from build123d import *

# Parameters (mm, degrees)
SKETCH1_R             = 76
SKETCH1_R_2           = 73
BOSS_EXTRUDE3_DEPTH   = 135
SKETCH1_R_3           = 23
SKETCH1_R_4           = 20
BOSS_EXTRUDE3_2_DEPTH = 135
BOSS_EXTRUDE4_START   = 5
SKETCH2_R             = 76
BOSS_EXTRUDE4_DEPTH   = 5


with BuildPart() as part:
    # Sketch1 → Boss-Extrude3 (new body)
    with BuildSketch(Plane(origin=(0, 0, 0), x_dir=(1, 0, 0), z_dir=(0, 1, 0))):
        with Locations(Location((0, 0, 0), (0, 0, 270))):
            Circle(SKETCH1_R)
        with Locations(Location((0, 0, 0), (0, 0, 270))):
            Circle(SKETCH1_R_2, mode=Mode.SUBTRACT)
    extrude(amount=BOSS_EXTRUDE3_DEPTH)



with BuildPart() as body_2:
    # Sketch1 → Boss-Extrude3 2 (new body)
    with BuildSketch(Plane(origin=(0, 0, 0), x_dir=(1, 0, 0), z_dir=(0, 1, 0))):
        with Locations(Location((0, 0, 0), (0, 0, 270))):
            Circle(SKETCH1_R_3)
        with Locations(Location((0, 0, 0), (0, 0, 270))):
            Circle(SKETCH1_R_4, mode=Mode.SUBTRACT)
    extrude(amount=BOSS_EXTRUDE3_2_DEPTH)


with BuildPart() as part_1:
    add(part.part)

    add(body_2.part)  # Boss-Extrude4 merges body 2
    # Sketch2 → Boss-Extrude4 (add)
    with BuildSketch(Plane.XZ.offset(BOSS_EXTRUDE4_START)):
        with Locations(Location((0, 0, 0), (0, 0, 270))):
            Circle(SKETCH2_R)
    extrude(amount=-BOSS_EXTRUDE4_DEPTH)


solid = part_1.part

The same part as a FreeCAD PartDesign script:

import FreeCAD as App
import Part
import Sketcher
Q = App.Units.Quantity

doc = App.newDocument("Part")
params = doc.addObject("Spreadsheet::Sheet", "Params")
for row, (alias, value) in enumerate([
    ("sketch1_diameter", "152 mm"),
    ("sketch1_diameter2", "146 mm"),
    ("pad1_length", "135 mm"),
    ("sketch2_diameter", "46 mm"),
    ("sketch2_diameter2", "40 mm"),
    ("pad2_length", "135 mm"),
    ("sketch3_diameter", "152 mm"),
    ("pad3_length", "5 mm"),
], start=1):
    params.set(f"A{row}", alias)
    params.set(f"B{row}", "=" + value)
    params.setAlias(f"B{row}", alias)

body = doc.addObject("PartDesign::Body", "Body")

# Sketch on XZ plane
sketch1 = doc.addObject("Sketcher::SketchObject", "Sketch")
body.addObject(sketch1)
sketch1.AttachmentSupport = (doc.XZ_Plane, [""])
sketch1.MapMode = "FlatFace"
sketch1.addGeometry([
    Part.Circle(App.Vector(0, 0, 0), App.Vector(0, 0, 1), 76),
    Part.Circle(App.Vector(0, 0, 0), App.Vector(0, 0, 1), 73),
], False)
sketch1.addConstraint([
    Sketcher.Constraint("Coincident", 0, 3, -1, 1),
    Sketcher.Constraint("Coincident", 1, 3, -1, 1),
    Sketcher.Constraint("Diameter", 0, Q("152 mm")),
    Sketcher.Constraint("Diameter", 1, Q("146 mm")),
])
sketch1.setExpression("Constraints[2]", "Params.sketch1_diameter")
sketch1.setExpression("Constraints[3]", "Params.sketch1_diameter2")
pad1 = doc.addObject("PartDesign::Pad", "Pad")
body.addObject(pad1)
pad1.Profile = sketch1
pad1.setExpression("Length", "Params.pad1_length")
pad1.Reversed = True
body2 = doc.addObject("PartDesign::Body", "Body001")

# Sketch on XZ plane
sketch2 = doc.addObject("Sketcher::SketchObject", "Sketch001")
body2.addObject(sketch2)
sketch2.AttachmentSupport = (doc.getObject("XZ_Plane001"), [""])
sketch2.MapMode = "FlatFace"
sketch2.addGeometry([
    Part.Circle(App.Vector(0, 0, 0), App.Vector(0, 0, 1), 23),
    Part.Circle(App.Vector(0, 0, 0), App.Vector(0, 0, 1), 20),
], False)
sketch2.addConstraint([
    Sketcher.Constraint("Coincident", 0, 3, -1, 1),
    Sketcher.Constraint("Coincident", 1, 3, -1, 1),
    Sketcher.Constraint("Diameter", 0, Q("46 mm")),
    Sketcher.Constraint("Diameter", 1, Q("40 mm")),
])
sketch2.setExpression("Constraints[2]", "Params.sketch2_diameter")
sketch2.setExpression("Constraints[3]", "Params.sketch2_diameter2")
pad2 = doc.addObject("PartDesign::Pad", "Pad001")
body2.addObject(pad2)
pad2.Profile = sketch2
pad2.setExpression("Length", "Params.pad2_length")
pad2.Reversed = True
body.AllowCompound = True
doc.recompute()

boolean = doc.addObject("PartDesign::Boolean", "Boolean")
body.addObject(boolean)
boolean.Type = "Fuse"
boolean.addObjects([body2])

# Sketch on XZ plane
sketch3 = doc.addObject("Sketcher::SketchObject", "Sketch002")
body.addObject(sketch3)
sketch3.AttachmentSupport = (doc.XZ_Plane, [""])
sketch3.MapMode = "FlatFace"
sketch3.AttachmentOffset = App.Placement(App.Vector(0, 0, 5), App.Rotation())
sketch3.addGeometry(Part.Circle(App.Vector(0, 0, 0), App.Vector(0, 0, 1), 76), False)
sketch3.addConstraint([
    Sketcher.Constraint("Coincident", 0, 3, -1, 1),
    Sketcher.Constraint("Diameter", 0, Q("152 mm")),
])
sketch3.setExpression("Constraints[1]", "Params.sketch3_diameter")
pad3 = doc.addObject("PartDesign::Pad", "Pad002")
body.addObject(pad3)
pad3.Profile = sketch3
pad3.setExpression("Length", "Params.pad3_length")
pad3.Reversed = True

doc.recompute()
